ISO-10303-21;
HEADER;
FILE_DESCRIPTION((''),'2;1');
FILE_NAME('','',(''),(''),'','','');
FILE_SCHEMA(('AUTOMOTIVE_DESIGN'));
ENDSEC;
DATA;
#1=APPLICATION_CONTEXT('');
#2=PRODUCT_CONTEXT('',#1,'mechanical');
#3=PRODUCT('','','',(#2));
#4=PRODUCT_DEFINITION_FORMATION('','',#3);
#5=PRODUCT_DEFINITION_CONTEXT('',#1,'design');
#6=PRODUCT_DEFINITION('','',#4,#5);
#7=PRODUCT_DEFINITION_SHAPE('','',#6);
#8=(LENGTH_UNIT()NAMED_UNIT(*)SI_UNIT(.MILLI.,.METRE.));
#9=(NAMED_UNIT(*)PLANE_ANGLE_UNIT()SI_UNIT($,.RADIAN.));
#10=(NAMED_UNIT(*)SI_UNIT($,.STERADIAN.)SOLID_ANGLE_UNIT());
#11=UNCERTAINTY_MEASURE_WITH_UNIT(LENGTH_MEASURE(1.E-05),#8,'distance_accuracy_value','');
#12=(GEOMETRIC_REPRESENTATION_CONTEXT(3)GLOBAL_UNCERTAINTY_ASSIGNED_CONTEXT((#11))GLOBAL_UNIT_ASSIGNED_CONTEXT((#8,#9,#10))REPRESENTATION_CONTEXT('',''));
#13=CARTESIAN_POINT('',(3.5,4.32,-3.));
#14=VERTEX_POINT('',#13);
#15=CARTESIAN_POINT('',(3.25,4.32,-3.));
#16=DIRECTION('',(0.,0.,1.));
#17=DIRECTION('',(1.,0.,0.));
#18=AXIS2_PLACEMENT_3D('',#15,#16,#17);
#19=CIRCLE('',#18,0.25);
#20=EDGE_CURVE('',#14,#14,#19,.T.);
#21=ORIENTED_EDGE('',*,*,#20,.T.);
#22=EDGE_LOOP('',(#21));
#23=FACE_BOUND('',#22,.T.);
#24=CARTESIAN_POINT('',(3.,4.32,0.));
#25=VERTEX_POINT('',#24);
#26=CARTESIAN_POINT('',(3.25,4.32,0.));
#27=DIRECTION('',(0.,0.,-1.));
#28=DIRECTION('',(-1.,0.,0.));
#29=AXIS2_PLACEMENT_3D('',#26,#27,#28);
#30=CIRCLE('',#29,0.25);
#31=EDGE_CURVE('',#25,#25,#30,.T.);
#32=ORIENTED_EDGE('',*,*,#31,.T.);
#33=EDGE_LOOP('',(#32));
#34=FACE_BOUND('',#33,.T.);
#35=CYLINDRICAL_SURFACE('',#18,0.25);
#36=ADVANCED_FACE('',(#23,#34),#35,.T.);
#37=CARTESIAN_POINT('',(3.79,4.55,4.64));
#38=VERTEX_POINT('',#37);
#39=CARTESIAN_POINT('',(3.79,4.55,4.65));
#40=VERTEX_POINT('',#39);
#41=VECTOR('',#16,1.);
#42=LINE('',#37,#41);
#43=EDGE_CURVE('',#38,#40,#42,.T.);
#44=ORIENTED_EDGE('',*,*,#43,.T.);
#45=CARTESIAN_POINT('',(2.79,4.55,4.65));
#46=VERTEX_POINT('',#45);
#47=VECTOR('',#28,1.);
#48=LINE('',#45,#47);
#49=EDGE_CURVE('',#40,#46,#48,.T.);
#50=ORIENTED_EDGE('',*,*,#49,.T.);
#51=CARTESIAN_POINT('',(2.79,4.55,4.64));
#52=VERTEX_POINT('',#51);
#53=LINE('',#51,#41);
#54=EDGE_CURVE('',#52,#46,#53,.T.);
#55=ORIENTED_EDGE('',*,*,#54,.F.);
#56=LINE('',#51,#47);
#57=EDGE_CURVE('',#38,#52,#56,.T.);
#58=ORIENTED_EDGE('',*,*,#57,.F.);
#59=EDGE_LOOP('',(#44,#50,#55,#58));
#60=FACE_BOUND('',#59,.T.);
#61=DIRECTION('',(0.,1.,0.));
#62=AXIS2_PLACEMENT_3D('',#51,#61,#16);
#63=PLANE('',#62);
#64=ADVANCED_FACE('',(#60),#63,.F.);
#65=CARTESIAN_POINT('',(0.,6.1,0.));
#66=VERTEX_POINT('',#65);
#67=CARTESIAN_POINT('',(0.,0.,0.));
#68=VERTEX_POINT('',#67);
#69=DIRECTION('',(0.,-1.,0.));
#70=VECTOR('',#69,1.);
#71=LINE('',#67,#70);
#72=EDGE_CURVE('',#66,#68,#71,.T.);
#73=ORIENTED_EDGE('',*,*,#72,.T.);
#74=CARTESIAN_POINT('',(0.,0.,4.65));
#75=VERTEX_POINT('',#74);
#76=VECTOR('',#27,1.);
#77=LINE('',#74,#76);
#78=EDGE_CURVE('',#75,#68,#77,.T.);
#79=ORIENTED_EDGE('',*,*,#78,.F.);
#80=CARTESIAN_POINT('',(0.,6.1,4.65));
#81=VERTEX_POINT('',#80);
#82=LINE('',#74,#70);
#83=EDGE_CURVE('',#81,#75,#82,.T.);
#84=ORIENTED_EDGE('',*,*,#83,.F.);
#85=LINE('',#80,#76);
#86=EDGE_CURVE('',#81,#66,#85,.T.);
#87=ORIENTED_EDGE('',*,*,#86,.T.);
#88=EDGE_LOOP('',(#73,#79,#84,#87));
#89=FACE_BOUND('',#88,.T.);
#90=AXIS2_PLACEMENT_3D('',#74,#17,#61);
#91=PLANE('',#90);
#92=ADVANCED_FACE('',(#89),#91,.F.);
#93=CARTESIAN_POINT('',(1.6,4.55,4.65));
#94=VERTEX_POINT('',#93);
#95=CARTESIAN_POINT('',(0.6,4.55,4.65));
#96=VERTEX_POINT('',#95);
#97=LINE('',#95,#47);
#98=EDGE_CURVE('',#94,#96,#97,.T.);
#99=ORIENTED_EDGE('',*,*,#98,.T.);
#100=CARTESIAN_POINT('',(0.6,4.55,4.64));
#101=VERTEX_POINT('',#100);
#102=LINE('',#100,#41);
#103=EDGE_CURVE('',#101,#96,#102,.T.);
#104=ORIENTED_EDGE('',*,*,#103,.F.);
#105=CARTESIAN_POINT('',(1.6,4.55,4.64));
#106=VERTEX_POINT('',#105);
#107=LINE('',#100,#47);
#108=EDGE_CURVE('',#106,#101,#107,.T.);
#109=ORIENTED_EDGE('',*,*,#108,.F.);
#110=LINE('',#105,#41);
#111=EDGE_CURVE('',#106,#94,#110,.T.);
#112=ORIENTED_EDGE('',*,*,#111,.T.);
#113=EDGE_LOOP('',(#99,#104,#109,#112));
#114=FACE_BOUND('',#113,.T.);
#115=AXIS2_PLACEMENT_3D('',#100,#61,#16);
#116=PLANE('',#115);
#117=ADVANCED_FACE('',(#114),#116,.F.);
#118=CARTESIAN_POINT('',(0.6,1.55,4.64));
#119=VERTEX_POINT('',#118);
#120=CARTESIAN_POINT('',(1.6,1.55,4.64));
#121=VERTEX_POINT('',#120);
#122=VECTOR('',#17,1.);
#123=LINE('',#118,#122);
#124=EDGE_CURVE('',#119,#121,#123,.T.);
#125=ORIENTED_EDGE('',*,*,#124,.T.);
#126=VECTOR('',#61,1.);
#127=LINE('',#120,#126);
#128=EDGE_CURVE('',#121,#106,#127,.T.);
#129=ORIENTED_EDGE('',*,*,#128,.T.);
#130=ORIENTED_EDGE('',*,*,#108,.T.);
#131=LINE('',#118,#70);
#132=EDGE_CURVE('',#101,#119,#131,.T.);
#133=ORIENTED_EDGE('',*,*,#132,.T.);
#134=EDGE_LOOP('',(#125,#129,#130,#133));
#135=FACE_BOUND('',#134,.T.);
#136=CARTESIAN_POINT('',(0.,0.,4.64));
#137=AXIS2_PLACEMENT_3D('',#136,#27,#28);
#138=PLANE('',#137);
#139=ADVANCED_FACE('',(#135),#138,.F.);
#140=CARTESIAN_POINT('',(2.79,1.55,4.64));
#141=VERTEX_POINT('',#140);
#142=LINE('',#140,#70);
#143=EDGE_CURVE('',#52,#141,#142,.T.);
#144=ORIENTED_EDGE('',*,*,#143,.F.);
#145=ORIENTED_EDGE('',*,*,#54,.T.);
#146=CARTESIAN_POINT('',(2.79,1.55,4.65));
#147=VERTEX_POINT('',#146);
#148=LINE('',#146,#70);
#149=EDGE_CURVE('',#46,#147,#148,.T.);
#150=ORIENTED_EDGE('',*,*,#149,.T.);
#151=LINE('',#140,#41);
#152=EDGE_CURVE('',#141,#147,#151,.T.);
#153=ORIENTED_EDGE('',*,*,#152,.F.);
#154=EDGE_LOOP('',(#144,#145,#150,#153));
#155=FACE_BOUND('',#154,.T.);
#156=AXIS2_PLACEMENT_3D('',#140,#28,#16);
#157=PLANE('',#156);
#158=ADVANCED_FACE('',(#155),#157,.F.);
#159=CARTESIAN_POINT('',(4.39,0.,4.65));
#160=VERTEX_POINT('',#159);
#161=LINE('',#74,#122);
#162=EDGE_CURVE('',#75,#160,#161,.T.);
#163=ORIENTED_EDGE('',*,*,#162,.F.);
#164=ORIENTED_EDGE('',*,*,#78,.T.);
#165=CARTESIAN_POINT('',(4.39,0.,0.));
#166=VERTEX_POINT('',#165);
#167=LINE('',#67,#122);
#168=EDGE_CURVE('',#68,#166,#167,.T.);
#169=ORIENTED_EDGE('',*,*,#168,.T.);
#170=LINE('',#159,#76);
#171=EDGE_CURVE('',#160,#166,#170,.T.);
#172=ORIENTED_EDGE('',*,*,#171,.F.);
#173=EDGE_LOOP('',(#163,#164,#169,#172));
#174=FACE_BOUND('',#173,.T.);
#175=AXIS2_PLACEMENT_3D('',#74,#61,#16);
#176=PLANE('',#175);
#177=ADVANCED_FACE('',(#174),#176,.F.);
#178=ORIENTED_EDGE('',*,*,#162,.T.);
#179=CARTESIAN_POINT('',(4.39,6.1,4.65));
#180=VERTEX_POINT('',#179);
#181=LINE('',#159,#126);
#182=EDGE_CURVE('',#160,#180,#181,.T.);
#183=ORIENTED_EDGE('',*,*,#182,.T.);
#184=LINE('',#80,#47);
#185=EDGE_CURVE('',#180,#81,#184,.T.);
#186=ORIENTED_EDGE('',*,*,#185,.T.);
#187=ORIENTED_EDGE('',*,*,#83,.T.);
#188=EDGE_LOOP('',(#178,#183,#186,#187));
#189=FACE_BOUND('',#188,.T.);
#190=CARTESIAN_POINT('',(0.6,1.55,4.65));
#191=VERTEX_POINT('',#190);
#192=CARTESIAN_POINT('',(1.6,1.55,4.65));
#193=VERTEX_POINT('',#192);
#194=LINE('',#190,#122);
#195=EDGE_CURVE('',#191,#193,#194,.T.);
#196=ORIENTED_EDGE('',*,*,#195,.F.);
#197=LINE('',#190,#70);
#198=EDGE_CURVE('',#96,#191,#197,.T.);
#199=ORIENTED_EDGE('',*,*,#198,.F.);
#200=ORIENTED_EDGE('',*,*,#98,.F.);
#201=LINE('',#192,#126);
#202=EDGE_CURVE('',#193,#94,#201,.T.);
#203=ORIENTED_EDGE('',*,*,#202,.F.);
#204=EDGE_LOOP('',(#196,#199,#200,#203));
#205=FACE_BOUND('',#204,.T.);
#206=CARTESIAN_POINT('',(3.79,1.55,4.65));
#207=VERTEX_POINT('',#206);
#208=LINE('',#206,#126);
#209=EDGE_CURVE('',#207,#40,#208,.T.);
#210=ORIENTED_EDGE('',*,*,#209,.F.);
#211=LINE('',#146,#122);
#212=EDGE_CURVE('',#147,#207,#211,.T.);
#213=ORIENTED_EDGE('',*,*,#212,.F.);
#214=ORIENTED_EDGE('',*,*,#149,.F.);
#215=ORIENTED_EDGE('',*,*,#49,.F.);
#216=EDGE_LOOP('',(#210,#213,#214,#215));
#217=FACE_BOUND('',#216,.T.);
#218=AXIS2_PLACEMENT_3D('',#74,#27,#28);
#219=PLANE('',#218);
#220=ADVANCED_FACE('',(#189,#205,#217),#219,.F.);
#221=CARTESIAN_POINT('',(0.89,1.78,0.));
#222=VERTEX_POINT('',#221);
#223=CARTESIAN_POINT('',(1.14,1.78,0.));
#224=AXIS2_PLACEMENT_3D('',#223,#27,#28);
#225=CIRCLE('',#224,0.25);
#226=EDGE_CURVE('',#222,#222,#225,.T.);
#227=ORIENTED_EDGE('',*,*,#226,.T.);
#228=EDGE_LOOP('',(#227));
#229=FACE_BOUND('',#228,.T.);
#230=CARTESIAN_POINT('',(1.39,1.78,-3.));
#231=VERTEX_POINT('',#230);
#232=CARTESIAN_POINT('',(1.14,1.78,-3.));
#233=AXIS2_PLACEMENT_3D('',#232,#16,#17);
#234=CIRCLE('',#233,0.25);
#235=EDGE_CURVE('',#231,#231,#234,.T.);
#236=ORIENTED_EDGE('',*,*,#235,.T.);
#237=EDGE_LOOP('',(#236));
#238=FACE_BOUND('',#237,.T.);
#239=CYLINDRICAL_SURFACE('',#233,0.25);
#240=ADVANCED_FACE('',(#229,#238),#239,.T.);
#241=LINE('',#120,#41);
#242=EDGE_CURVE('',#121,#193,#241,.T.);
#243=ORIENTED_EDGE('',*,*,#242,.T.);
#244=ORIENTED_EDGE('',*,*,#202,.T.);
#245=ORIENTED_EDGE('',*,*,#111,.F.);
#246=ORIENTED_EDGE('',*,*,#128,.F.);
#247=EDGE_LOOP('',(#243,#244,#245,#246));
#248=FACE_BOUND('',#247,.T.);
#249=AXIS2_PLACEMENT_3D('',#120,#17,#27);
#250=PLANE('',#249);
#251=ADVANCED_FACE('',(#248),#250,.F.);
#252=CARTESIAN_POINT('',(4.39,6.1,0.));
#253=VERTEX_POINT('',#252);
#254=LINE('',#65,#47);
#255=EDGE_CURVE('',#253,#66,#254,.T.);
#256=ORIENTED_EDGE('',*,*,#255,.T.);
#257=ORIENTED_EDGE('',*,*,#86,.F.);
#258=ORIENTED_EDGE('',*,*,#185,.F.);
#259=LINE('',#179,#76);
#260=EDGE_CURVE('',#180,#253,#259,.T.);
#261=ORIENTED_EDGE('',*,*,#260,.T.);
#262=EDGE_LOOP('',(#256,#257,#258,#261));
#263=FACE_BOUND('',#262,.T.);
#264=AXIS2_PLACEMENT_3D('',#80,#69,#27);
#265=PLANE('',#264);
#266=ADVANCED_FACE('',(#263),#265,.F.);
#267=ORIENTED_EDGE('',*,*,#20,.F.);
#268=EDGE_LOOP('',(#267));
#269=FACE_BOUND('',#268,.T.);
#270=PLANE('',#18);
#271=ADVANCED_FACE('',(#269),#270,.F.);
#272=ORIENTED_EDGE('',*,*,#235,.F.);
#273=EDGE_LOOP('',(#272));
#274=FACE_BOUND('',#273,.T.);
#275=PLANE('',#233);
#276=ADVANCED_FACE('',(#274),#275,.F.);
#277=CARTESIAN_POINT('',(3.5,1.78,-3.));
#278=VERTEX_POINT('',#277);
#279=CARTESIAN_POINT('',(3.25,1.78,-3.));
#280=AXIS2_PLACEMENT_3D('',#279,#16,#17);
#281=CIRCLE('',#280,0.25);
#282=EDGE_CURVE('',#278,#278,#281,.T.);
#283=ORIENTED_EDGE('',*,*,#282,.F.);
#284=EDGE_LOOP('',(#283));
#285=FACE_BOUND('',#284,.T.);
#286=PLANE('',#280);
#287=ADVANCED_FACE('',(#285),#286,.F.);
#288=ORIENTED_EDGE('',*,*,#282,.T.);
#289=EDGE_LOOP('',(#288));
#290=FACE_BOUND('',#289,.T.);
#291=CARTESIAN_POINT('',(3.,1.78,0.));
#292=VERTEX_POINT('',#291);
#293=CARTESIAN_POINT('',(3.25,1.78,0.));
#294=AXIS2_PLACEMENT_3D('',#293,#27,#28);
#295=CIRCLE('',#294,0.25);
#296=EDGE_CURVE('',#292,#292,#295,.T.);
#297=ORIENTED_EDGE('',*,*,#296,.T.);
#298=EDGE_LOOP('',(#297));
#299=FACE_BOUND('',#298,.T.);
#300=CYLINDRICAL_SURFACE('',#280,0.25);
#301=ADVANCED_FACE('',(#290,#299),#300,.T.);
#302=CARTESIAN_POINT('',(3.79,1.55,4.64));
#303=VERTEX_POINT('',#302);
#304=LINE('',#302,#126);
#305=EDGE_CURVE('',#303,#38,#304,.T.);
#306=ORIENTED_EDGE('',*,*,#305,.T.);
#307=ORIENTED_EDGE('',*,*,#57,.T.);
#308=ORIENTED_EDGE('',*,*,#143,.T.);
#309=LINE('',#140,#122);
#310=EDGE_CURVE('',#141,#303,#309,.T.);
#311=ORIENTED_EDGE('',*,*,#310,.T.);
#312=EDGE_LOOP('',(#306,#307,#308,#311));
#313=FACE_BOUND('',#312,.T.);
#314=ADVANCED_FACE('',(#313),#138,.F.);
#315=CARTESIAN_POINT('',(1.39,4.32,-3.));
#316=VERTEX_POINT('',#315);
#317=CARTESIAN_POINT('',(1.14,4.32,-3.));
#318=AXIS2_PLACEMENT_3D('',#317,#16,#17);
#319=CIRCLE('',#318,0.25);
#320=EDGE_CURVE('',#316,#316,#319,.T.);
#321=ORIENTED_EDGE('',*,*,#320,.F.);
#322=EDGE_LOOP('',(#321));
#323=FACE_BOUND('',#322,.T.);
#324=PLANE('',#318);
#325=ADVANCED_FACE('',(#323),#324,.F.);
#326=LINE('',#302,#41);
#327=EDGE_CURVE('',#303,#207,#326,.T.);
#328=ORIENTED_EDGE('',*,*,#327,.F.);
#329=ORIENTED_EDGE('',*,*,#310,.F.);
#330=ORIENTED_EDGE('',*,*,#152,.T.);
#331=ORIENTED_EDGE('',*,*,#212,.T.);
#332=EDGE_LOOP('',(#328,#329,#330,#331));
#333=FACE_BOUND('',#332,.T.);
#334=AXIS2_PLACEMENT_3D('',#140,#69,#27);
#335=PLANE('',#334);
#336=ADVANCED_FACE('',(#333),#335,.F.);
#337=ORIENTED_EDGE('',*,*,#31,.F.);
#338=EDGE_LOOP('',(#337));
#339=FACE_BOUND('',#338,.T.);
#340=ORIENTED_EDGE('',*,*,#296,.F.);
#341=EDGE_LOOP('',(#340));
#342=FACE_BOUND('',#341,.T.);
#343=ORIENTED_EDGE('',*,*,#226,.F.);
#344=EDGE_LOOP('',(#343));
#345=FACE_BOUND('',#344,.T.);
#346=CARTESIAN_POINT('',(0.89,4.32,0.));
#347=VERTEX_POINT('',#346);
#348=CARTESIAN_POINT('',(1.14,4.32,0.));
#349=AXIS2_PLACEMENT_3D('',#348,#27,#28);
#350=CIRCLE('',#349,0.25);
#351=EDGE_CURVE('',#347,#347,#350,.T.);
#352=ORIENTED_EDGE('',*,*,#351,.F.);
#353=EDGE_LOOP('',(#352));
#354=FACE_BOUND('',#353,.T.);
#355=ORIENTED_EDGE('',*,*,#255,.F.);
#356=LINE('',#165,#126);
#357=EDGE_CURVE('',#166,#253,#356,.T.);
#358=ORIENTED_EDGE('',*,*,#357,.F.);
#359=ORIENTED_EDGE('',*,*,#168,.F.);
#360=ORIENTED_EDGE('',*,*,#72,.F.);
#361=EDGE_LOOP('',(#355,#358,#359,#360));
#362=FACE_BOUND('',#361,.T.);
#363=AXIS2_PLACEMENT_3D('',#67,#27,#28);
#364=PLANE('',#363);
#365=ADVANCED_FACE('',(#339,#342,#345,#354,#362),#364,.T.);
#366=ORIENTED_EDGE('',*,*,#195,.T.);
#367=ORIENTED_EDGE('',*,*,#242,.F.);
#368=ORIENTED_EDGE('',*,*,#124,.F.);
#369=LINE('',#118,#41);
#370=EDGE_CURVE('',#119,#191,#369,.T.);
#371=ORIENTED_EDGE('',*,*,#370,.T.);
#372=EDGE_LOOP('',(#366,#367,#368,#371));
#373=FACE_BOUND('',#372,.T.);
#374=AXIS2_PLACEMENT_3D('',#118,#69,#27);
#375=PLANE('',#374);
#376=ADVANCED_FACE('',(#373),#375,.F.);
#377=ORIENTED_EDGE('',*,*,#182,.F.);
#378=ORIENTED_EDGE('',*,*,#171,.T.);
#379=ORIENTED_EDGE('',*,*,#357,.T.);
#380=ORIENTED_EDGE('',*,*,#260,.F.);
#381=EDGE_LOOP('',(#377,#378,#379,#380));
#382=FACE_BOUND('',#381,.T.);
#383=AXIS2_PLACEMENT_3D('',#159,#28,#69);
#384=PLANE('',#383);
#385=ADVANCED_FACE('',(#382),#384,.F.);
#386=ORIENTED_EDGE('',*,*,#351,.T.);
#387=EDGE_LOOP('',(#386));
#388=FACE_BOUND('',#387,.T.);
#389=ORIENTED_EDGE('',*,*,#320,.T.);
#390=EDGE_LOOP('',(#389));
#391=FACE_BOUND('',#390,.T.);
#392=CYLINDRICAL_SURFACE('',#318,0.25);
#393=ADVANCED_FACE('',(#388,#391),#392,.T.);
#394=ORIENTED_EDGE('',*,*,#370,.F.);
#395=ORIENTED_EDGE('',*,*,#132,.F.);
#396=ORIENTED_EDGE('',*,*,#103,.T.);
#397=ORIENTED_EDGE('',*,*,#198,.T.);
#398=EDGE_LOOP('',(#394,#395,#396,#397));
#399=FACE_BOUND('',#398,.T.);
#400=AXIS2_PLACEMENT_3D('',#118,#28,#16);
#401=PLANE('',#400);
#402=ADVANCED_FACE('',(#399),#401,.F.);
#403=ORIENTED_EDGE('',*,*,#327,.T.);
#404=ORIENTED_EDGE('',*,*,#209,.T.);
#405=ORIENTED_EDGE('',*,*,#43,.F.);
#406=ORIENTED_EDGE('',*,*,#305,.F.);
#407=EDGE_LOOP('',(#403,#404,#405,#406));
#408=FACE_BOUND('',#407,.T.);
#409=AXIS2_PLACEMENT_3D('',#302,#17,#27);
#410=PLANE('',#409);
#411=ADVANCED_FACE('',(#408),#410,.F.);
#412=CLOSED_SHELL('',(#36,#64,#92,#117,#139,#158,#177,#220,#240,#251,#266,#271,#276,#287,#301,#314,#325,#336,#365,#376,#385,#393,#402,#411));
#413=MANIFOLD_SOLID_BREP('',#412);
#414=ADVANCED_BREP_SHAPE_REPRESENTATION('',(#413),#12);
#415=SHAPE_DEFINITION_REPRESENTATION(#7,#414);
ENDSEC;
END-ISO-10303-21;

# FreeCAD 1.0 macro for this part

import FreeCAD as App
import Part
import Sketcher
from FreeCAD import Vector
Q = App.Units.Quantity


def add_polygon(sketch, points):
    """Adds a closed chain of lines whose ends are joined by coincident constraints."""
    first, n = sketch.GeometryCount, len(points)
    for a, b in zip(points, points[1:] + points[:1]):
        sketch.addGeometry(Part.LineSegment(App.Vector(*a, 0), App.Vector(*b, 0)), False)
    for i in range(n):
        sketch.addConstraint(Sketcher.Constraint("Coincident", first + i, 2, first + (i + 1) % n, 1))

doc = App.newDocument("Part")
body = doc.addObject("PartDesign::Body", "Body")

sketch1 = body.newObject("Sketcher::SketchObject", "Sketch")
sketch1.AttachmentSupport = (doc.getObject("XY_Plane"), [""])
sketch1.MapMode = "FlatFace"
add_polygon(sketch1, [(0, 6.1), (0, 0), (4.39, 0), (4.39, 6.1)])
sketch1.addConstraint([
    Sketcher.Constraint("Vertical", 0),
    Sketcher.Constraint("Horizontal", 1),
    Sketcher.Constraint("Vertical", 2),
    Sketcher.Constraint("Horizontal", 3),
    Sketcher.Constraint("Coincident", 0, 2, -1, 1),
    Sketcher.Constraint("DistanceY", 0, 2, 0, 1, Q("6.1 mm")),
    Sketcher.Constraint("DistanceX", 1, 1, 1, 2, Q("4.39 mm")),
])
pad1 = body.newObject("PartDesign::Pad", "Pad")
pad1.Profile = sketch1
pad1.Length = 4.65

sketch2 = body.newObject("Sketcher::SketchObject", "Sketch001")
sketch2.AttachmentSupport = (doc.getObject("XY_Plane"), [""])
sketch2.MapMode = "FlatFace"
sketch2.AttachmentOffset = App.Placement(Vector(0, 0, 4.65), App.Rotation())
add_polygon(sketch2, [(0.6, 4.55), (0.6, 1.55), (1.6, 1.55), (1.6, 4.55)])
add_polygon(sketch2, [(2.79, 4.55), (2.79, 1.55), (3.79, 1.55), (3.79, 4.55)])
sketch2.addConstraint([
    Sketcher.Constraint("Vertical", 0),
    Sketcher.Constraint("Horizontal", 1),
    Sketcher.Constraint("Vertical", 2),
    Sketcher.Constraint("Horizontal", 3),
    Sketcher.Constraint("Vertical", 4),
    Sketcher.Constraint("Horizontal", 5),
    Sketcher.Constraint("Vertical", 6),
    Sketcher.Constraint("Horizontal", 7),
    Sketcher.Constraint("Horizontal", 1, 2, 4, 2),
    Sketcher.Constraint("Horizontal", 3, 2, 6, 2),
    Sketcher.Constraint("Equal", 3, 5),
    Sketcher.Constraint("DistanceX", 1, 1, 1, 2, Q("1 mm")),
    Sketcher.Constraint("DistanceY", 0, 2, 0, 1, Q("3 mm")),
    Sketcher.Constraint("DistanceX", -1, 1, 0, 2, Q("0.6 mm")),
    Sketcher.Constraint("DistanceY", -1, 1, 0, 2, Q("1.55 mm")),
    Sketcher.Constraint("DistanceX", -1, 1, 4, 2, Q("2.79 mm")),
])
pocket1 = body.newObject("PartDesign::Pocket", "Pocket")
pocket1.Profile = sketch2
pocket1.Length = 0.01

sketch3 = body.newObject("Sketcher::SketchObject", "Sketch002")
sketch3.AttachmentSupport = (doc.getObject("XY_Plane"), [""])
sketch3.MapMode = "FlatFace"
sketch3.addGeometry([
    Part.Circle(Vector(1.14, 1.78, 0), Vector(0, 0, 1), 0.25),
    Part.Circle(Vector(3.25, 1.78, 0), Vector(0, 0, 1), 0.25),
    Part.Circle(Vector(3.25, 4.32, 0), Vector(0, 0, 1), 0.25),
    Part.Circle(Vector(1.14, 4.32, 0), Vector(0, 0, 1), 0.25),
], False)
sketch3.addConstraint([
    Sketcher.Constraint("Equal", 0, 1),
    Sketcher.Constraint("Equal", 1, 2),
    Sketcher.Constraint("Equal", 2, 3),
    Sketcher.Constraint("Horizontal", 0, 3, 1, 3),
    Sketcher.Constraint("Horizontal", 2, 3, 3, 3),
    Sketcher.Constraint("Vertical", 1, 3, 2, 3),
    Sketcher.Constraint("Vertical", 0, 3, 3, 3),
    Sketcher.Constraint("Diameter", 0, Q("0.5 mm")),
    Sketcher.Constraint("DistanceX", -1, 1, 0, 3, Q("1.14 mm")),
    Sketcher.Constraint("DistanceY", -1, 1, 0, 3, Q("1.78 mm")),
    Sketcher.Constraint("DistanceX", -1, 1, 1, 3, Q("3.25 mm")),
    Sketcher.Constraint("DistanceY", -1, 1, 2, 3, Q("4.32 mm")),
])
pad2 = body.newObject("PartDesign::Pad", "Pad001")
pad2.Profile = sketch3
pad2.Length = 3
pad2.Reversed = True

doc.recompute()
